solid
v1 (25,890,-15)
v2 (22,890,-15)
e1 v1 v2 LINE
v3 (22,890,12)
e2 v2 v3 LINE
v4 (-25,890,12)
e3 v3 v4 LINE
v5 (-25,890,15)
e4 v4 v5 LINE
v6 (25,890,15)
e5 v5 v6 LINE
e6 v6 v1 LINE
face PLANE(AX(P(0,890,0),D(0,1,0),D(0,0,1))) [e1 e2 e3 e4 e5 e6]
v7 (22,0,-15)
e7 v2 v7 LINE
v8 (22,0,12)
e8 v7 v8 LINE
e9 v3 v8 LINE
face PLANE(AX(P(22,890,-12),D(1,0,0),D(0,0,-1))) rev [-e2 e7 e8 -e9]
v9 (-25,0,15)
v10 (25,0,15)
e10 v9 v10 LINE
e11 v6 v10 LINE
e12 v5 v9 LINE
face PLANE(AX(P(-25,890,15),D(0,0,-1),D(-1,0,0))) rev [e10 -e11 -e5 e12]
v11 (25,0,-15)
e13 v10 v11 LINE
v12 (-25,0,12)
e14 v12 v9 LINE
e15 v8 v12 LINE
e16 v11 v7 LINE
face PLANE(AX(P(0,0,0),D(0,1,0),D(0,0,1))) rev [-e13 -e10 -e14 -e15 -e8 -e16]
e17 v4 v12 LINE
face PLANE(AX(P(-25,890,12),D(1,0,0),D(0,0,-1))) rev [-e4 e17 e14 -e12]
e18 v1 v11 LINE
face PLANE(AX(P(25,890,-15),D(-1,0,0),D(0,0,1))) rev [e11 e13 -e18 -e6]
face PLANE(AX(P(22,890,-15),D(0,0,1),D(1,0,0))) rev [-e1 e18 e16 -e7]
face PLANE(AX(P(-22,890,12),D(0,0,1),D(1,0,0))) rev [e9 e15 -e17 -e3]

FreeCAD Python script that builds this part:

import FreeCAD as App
import Part
import Sketcher
from FreeCAD import Vector


def add_polygon(sketch, points):
    """Adds a closed chain of lines whose ends are joined by coincident constraints."""
    first, n = sketch.GeometryCount, len(points)
    for a, b in zip(points, points[1:] + points[:1]):
        sketch.addGeometry(Part.LineSegment(App.Vector(*a, 0), App.Vector(*b, 0)), False)
    for i in range(n):
        sketch.addConstraint(Sketcher.Constraint("Coincident", first + i, 2, first + (i + 1) % n, 1))

doc = App.newDocument("Part")
params = doc.addObject("Spreadsheet::Sheet", "Params")
for row, (alias, value) in enumerate([
    ("sketch1_width", "50 mm"),
    ("sketch1_width2", "3 mm"),
    ("sketch1_height", "30 mm"),
    ("pad1_length", "890 mm"),
], start=1):
    params.set(f"A{row}", alias)
    params.set(f"B{row}", "=" + value)
    params.setAlias(f"B{row}", alias)

body = doc.addObject("PartDesign::Body", "Body")

# Sketch on XZ plane
sketch1 = doc.addObject("Sketcher::SketchObject", "Sketch")
body.addObject(sketch1)
sketch1.AttachmentSupport = (doc.XZ_Plane, [""])
sketch1.MapMode = "FlatFace"
add_polygon(sketch1, [(-25, 12), (-25, 15), (25, 15), (25, -15), (22, -15), (22, 12)])  # lines 0-5
sketch1.addConstraint([
    Sketcher.Constraint("Vertical", 0),
    Sketcher.Constraint("Horizontal", 1),
    Sketcher.Constraint("Vertical", 2),
    Sketcher.Constraint("Horizontal", 3),
    Sketcher.Constraint("Vertical", 4),
    Sketcher.Constraint("Horizontal", 5),
    Sketcher.Constraint("Symmetric", 0, 2, 2, 2, -1, 1),
    Sketcher.Constraint("Equal", 3, 0),
    Sketcher.Constraint("DistanceX", 1, 1, 1, 2, 50.0),
    Sketcher.Constraint("DistanceX", 3, 2, 3, 1, 3.0),
    Sketcher.Constraint("DistanceY", 2, 2, 2, 1, 30.0),
])
sketch1.setExpression("Constraints[14]", "Params.sketch1_width")
sketch1.setExpression("Constraints[15]", "Params.sketch1_width2")
sketch1.setExpression("Constraints[16]", "Params.sketch1_height")
pad1 = doc.addObject("PartDesign::Pad", "Pad")
body.addObject(pad1)
pad1.Profile = sketch1
pad1.setExpression("Length", "Params.pad1_length")
pad1.Reversed = True

doc.recompute()
